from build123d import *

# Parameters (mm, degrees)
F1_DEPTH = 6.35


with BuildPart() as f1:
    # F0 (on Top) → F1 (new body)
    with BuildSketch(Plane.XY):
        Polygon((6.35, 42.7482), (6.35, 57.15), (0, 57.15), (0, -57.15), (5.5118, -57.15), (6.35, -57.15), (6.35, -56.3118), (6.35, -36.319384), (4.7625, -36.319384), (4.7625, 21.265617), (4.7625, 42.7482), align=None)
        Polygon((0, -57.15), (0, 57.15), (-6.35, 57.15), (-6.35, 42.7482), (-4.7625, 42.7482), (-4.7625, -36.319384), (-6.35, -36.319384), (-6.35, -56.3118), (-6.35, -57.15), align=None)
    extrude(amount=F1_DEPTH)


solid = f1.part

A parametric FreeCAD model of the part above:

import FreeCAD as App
import Part
import Sketcher
Q = App.Units.Quantity

doc = App.newDocument("Part")
body = doc.addObject("PartDesign::Body", "Body")

sketch1 = body.newObject("Sketcher::SketchObject", "Sketch")
sketch1.AttachmentSupport = (doc.getObject("XY_Plane"), [""])
sketch1.MapMode = "FlatFace"
sketch1.addGeometry([
    Part.LineSegment(App.Vector(6.3, 42.7, 0), App.Vector(6.3, 57.1, 0)),
    Part.LineSegment(App.Vector(6.3, 57.1, 0), App.Vector(-6.3, 57.1, 0)),
    Part.LineSegment(App.Vector(-6.3, 57.1, 0), App.Vector(-6.3, 42.7, 0)),
    Part.LineSegment(App.Vector(-6.3, 42.7, 0), App.Vector(-4.8, 42.7, 0)),
    Part.LineSegment(App.Vector(-4.8, 42.7, 0), App.Vector(-4.8, -36.3, 0)),
    Part.LineSegment(App.Vector(-4.8, -36.3, 0), App.Vector(-6.3, -36.3, 0)),
    Part.LineSegment(App.Vector(-6.3, -36.3, 0), App.Vector(-6.3, -57.1, 0)),
    Part.LineSegment(App.Vector(-6.3, -57.1, 0), App.Vector(6.3, -57.1, 0)),
    Part.LineSegment(App.Vector(6.3, -57.1, 0), App.Vector(6.3, -36.3, 0)),
    Part.LineSegment(App.Vector(6.3, -36.3, 0), App.Vector(4.8, -36.3, 0)),
    Part.LineSegment(App.Vector(4.8, -36.3, 0), App.Vector(4.8, 42.7, 0)),
    Part.LineSegment(App.Vector(4.8, 42.7, 0), App.Vector(6.3, 42.7, 0)),
], False)
sketch1.addConstraint([
    Sketcher.Constraint("Coincident", 0, 2, 1, 1),
    Sketcher.Constraint("Coincident", 1, 2, 2, 1),
    Sketcher.Constraint("Coincident", 2, 2, 3, 1),
    Sketcher.Constraint("Coincident", 3, 2, 4, 1),
    Sketcher.Constraint("Coincident", 4, 2, 5, 1),
    Sketcher.Constraint("Coincident", 5, 2, 6, 1),
    Sketcher.Constraint("Coincident", 6, 2, 7, 1),
    Sketcher.Constraint("Coincident", 7, 2, 8, 1),
    Sketcher.Constraint("Coincident", 8, 2, 9, 1),
    Sketcher.Constraint("Coincident", 9, 2, 10, 1),
    Sketcher.Constraint("Coincident", 10, 2, 11, 1),
    Sketcher.Constraint("Coincident", 11, 2, 0, 1),
    Sketcher.Constraint("Vertical", 0),
    Sketcher.Constraint("Horizontal", 1),
    Sketcher.Constraint("Vertical", 2),
    Sketcher.Constraint("Horizontal", 3),
    Sketcher.Constraint("Vertical", 4),
    Sketcher.Constraint("Horizontal", 5),
    Sketcher.Constraint("Vertical", 6),
    Sketcher.Constraint("Horizontal", 7),
    Sketcher.Constraint("Vertical", 8),
    Sketcher.Constraint("Horizontal", 9),
    Sketcher.Constraint("Vertical", 10),
    Sketcher.Constraint("Horizontal", 11),
    Sketcher.Constraint("Symmetric", 0, 2, 6, 2, -1, 1),
    Sketcher.Constraint("Symmetric", 5, 2, 8, 2, -2),
    Sketcher.Constraint("Symmetric", 3, 2, 10, 2, -2),
    Sketcher.Constraint("Vertical", 2, 2, 5, 2),
    Sketcher.Constraint("DistanceX", 1, 2, 1, 1, Q("0.5 in")),
    Sketcher.Constraint("DistanceY", 6, 2, 1, 2, Q("4.5 in")),
    Sketcher.Constraint("DistanceX", 3, 1, 3, 2, Q("0.0625 in")),
    Sketcher.Constraint("DistanceY", 0, 1, 0, 2, Q("0.567 in")),
    Sketcher.Constraint("DistanceY", 4, 2, 4, 1, 79.067584),
])
pad1 = body.newObject("PartDesign::Pad", "Pad")
pad1.Profile = sketch1
pad1.Length = Q("0.25 in")

doc.recompute()
